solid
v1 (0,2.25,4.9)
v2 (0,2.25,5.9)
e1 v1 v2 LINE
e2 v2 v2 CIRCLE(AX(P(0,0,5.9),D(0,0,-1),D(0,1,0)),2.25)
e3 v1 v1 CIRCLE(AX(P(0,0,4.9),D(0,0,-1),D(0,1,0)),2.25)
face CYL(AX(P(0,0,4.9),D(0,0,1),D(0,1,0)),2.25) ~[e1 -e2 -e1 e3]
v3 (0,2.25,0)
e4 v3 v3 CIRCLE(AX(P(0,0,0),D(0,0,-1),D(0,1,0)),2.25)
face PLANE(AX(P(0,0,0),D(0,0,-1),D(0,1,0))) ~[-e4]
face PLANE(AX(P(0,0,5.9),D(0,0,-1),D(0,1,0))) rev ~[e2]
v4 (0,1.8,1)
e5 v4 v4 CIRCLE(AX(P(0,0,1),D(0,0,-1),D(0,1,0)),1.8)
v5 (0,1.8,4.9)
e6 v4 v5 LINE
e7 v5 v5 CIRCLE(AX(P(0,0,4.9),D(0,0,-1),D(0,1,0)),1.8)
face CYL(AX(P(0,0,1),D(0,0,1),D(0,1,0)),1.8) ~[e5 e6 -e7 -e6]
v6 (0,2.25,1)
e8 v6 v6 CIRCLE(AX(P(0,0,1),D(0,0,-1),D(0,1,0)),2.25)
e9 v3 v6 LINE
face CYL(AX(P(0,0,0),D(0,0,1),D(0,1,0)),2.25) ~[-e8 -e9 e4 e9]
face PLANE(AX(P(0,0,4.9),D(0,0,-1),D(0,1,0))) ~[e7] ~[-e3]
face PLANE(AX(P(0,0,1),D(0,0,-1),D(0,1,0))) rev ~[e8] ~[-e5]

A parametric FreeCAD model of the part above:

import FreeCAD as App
import Part
import Sketcher

V = App.Vector
Q = App.Units.Quantity

doc = App.newDocument("Part")
params = doc.addObject("Spreadsheet::Sheet", "Params")
for row, (alias, value) in enumerate([
    ("sketch1_height", "1 mm"),
    ("sketch1_height2", "3.9 mm"),
    ("sketch1_width", "2.25 mm"),
    ("revolution_angle", "360 deg"),
], start=1):
    params.set(f"A{row}", alias)
    params.set(f"B{row}", "=" + value)
    params.setAlias(f"B{row}", alias)

body = doc.addObject("PartDesign::Body", "Body")

sketch1 = body.newObject("Sketcher::SketchObject", "Sketch")
sketch1.AttachmentSupport = (doc.getObject("YZ_Plane"), [""])
sketch1.MapMode = "FlatFace"
sketch1.addGeometry(Part.LineSegment(V(0, 5.9, 0), V(0, 0, 0)), False)
sketch1.addGeometry(Part.LineSegment(V(0, 0, 0), V(2.25, 0, 0)), False)
sketch1.addGeometry(Part.LineSegment(V(2.25, 0, 0), V(2.25, 1, 0)), False)
sketch1.addGeometry(Part.LineSegment(V(2.25, 1, 0), V(1.8, 1, 0)), False)
sketch1.addGeometry(Part.LineSegment(V(1.8, 1, 0), V(1.8, 4.9, 0)), False)
sketch1.addGeometry(Part.LineSegment(V(1.8, 4.9, 0), V(2.25, 4.9, 0)), False)
sketch1.addGeometry(Part.LineSegment(V(2.25, 4.9, 0), V(2.25, 5.9, 0)), False)
sketch1.addGeometry(Part.LineSegment(V(2.25, 5.9, 0), V(0, 5.9, 0)), False)
sketch1.addConstraint(Sketcher.Constraint("Coincident", 0, 2, 1, 1))
sketch1.addConstraint(Sketcher.Constraint("Coincident", 1, 2, 2, 1))
sketch1.addConstraint(Sketcher.Constraint("Coincident", 2, 2, 3, 1))
sketch1.addConstraint(Sketcher.Constraint("Coincident", 3, 2, 4, 1))
sketch1.addConstraint(Sketcher.Constraint("Coincident", 4, 2, 5, 1))
sketch1.addConstraint(Sketcher.Constraint("Coincident", 5, 2, 6, 1))
sketch1.addConstraint(Sketcher.Constraint("Coincident", 6, 2, 7, 1))
sketch1.addConstraint(Sketcher.Constraint("Coincident", 7, 2, 0, 1))
sketch1.addConstraint(Sketcher.Constraint("Vertical", 0))
sketch1.addConstraint(Sketcher.Constraint("Horizontal", 1))
sketch1.addConstraint(Sketcher.Constraint("Vertical", 2))
sketch1.addConstraint(Sketcher.Constraint("Horizontal", 3))
sketch1.addConstraint(Sketcher.Constraint("Vertical", 4))
sketch1.addConstraint(Sketcher.Constraint("Horizontal", 5))
sketch1.addConstraint(Sketcher.Constraint("Vertical", 6))
sketch1.addConstraint(Sketcher.Constraint("Horizontal", 7))
sketch1.addConstraint(Sketcher.Constraint("Coincident", 0, 2, -1, 1))
sketch1.addConstraint(Sketcher.Constraint("Vertical", 2, 2, 5, 2))
sketch1.addConstraint(Sketcher.Constraint("Equal", 2, 6))
sketch1.addConstraint(Sketcher.Constraint("DistanceY", 2, 1, 2, 2, Q("1 mm")))
sketch1.addConstraint(Sketcher.Constraint("DistanceY", 4, 1, 4, 2, Q("3.9 mm")))
sketch1.addConstraint(Sketcher.Constraint("DistanceX", 1, 1, 1, 2, Q("2.25 mm")))
sketch1.addConstraint(Sketcher.Constraint("DistanceX", -1, 1, 3, 2, Q("1.8 mm")))
sketch1.setExpression("Constraints[19]", "Params.sketch1_height")
sketch1.setExpression("Constraints[20]", "Params.sketch1_height2")
sketch1.setExpression("Constraints[21]", "Params.sketch1_width")
revolution = body.newObject("PartDesign::Revolution", "Revolution")
revolution.Profile = sketch1
revolution.ReferenceAxis = (sketch1, ["V_Axis"])
revolution.setExpression("Angle", "Params.revolution_angle")

doc.recompute()
